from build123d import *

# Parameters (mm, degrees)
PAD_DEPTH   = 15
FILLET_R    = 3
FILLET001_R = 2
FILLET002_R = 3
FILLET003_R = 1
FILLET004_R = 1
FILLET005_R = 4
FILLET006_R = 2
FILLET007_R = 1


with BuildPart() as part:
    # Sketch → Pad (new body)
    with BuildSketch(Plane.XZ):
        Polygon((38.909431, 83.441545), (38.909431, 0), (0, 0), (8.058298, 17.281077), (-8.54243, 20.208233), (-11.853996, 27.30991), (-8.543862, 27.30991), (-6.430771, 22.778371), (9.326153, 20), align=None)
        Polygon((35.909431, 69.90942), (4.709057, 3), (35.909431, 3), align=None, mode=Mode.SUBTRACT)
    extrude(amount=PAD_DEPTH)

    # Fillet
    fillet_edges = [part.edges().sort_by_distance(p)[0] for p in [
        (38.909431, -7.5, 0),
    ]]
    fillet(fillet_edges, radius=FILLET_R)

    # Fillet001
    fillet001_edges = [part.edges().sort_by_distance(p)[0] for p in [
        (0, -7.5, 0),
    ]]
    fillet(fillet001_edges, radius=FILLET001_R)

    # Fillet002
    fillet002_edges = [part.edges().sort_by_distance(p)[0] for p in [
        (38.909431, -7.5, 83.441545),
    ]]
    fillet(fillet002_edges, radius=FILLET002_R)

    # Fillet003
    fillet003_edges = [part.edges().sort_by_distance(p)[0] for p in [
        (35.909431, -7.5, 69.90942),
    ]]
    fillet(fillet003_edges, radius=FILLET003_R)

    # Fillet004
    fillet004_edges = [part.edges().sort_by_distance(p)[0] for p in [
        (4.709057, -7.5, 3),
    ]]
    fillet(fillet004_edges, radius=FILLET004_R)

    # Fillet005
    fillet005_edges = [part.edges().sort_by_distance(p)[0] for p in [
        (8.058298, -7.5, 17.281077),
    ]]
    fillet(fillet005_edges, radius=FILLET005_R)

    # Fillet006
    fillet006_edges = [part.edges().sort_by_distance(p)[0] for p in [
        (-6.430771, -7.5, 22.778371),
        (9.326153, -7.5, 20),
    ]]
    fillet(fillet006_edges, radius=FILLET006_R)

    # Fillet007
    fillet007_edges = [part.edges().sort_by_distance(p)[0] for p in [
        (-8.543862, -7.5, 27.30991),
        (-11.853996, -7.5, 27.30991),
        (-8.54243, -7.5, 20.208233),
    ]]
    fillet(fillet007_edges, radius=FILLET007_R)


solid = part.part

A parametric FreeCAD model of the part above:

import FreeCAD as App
import Part
import Sketcher

V = App.Vector
Q = App.Units.Quantity


def edges_at(feature, points):
    """Names of the edges that pass closest to the given points."""
    edges = feature.Shape.Edges
    near = lambda p: min(range(len(edges)), key=lambda i: edges[i].distToShape(Part.Vertex(*p))[0])
    return sorted({f"Edge{near(p) + 1}" for p in points})


def add_polygon(sketch, points):
    """Adds a closed chain of lines whose ends are joined by coincident constraints."""
    first, n = sketch.GeometryCount, len(points)
    for a, b in zip(points, points[1:] + points[:1]):
        sketch.addGeometry(Part.LineSegment(App.Vector(*a, 0), App.Vector(*b, 0)), False)
    for i in range(n):
        sketch.addConstraint(Sketcher.Constraint("Coincident", first + i, 2, first + (i + 1) % n, 1))

doc = App.newDocument("Part")
body = doc.addObject("PartDesign::Body", "Body")

# Sketch on XZ plane
sketch1 = doc.addObject("Sketcher::SketchObject", "Sketch")
body.addObject(sketch1)
sketch1.AttachmentSupport = (doc.XZ_Plane, [""])
sketch1.MapMode = "FlatFace"
add_polygon(sketch1, [(38.9, 0), (38.9, 83.4), (9.3, 20), (-6.4, 22.8), (-8.5, 27.3), (-11.9, 27.3), (-8.5, 20.2), (8.1, 17.3), (0, 0)])  # lines 0-8
add_polygon(sketch1, [(35.9, 69.9), (35.9, 3), (4.7, 3)])  # lines 9-11
sketch1.addConstraint([
    Sketcher.Constraint("Vertical", 0),
    Sketcher.Constraint("Horizontal", 4),
    Sketcher.Constraint("Horizontal", 8),
    Sketcher.Constraint("Vertical", 9),
    Sketcher.Constraint("Horizontal", 10),
    Sketcher.Constraint("Coincident", 7, 2, -1, 1),
    Sketcher.Constraint("Parallel", 3, 5),
    Sketcher.Constraint("Parallel", 2, 6),
    Sketcher.Constraint("Parallel", 1, 7),
    Sketcher.Constraint("Parallel", 7, 11),
    Sketcher.Constraint("Angle", 1, Q("-115 deg")),
    Sketcher.Constraint("Angle", 2, Q("169.999999 deg")),
    Sketcher.Constraint("Angle", 3, Q("114.999996 deg")),
    Sketcher.Constraint("Distance", 1, 70.0),
    Sketcher.Constraint("Distance", 2, 16.0),
    Sketcher.Constraint("Distance", 3, 5.0),
    Sketcher.Constraint("DistanceY", -1, 1, 1, 2, 20.0),
    Sketcher.Constraint("DistanceY", -1, 1, 9, 2, 3.0),
    Sketcher.Constraint("DistanceX", 9, 2, 8, 2, 3.0),
    Sketcher.Constraint("DistanceX", 8, 1, 8, 2, 38.909431),
    Sketcher.Constraint("DistanceY", 9, 2, 9, 1, 66.90942),
    Sketcher.Constraint("DistanceX", -1, 1, 6, 2, 8.058298),
    Sketcher.Constraint("Distance", 6, 16.856821),
])
pad1 = doc.addObject("PartDesign::Pad", "Pad")
body.addObject(pad1)
pad1.Profile = sketch1
pad1.Length = 15
doc.recompute()

fillet = doc.addObject("PartDesign::Fillet", "Fillet")
body.addObject(fillet)
fillet.Base = (pad1, edges_at(pad1, [(38.909, -7.5, 0)]))
fillet.Radius = 3
doc.recompute()

fillet2 = doc.addObject("PartDesign::Fillet", "Fillet001")
body.addObject(fillet2)
fillet2.Base = (fillet, edges_at(fillet, [(0, -7.5, 0)]))
fillet2.Radius = 2
doc.recompute()

fillet3 = doc.addObject("PartDesign::Fillet", "Fillet002")
body.addObject(fillet3)
fillet3.Base = (fillet2, edges_at(fillet2, [(38.909, -7.5, 83.442)]))
fillet3.Radius = 3
doc.recompute()

fillet4 = doc.addObject("PartDesign::Fillet", "Fillet003")
body.addObject(fillet4)
fillet4.Base = (fillet3, edges_at(fillet3, [(35.909, -7.5, 69.909)]))
fillet4.Radius = 1
doc.recompute()

fillet5 = doc.addObject("PartDesign::Fillet", "Fillet004")
body.addObject(fillet5)
fillet5.Base = (fillet4, edges_at(fillet4, [(4.709, -7.5, 3)]))
fillet5.Radius = 1
doc.recompute()

fillet6 = doc.addObject("PartDesign::Fillet", "Fillet005")
body.addObject(fillet6)
fillet6.Base = (fillet5, edges_at(fillet5, [(8.058, -7.5, 17.281)]))
fillet6.Radius = 4
doc.recompute()

fillet7 = doc.addObject("PartDesign::Fillet", "Fillet006")
body.addObject(fillet7)
fillet7.Base = (fillet6, edges_at(fillet6, [(-6.431, -7.5, 22.778), (9.326, -7.5, 20)]))
fillet7.Radius = 2
doc.recompute()

fillet8 = doc.addObject("PartDesign::Fillet", "Fillet007")
body.addObject(fillet8)
fillet8.Base = (fillet7, edges_at(fillet7, [(-8.544, -7.5, 27.31), (-11.854, -7.5, 27.31), (-8.542, -7.5, 20.208)]))
fillet8.Radius = 1

doc.recompute()
